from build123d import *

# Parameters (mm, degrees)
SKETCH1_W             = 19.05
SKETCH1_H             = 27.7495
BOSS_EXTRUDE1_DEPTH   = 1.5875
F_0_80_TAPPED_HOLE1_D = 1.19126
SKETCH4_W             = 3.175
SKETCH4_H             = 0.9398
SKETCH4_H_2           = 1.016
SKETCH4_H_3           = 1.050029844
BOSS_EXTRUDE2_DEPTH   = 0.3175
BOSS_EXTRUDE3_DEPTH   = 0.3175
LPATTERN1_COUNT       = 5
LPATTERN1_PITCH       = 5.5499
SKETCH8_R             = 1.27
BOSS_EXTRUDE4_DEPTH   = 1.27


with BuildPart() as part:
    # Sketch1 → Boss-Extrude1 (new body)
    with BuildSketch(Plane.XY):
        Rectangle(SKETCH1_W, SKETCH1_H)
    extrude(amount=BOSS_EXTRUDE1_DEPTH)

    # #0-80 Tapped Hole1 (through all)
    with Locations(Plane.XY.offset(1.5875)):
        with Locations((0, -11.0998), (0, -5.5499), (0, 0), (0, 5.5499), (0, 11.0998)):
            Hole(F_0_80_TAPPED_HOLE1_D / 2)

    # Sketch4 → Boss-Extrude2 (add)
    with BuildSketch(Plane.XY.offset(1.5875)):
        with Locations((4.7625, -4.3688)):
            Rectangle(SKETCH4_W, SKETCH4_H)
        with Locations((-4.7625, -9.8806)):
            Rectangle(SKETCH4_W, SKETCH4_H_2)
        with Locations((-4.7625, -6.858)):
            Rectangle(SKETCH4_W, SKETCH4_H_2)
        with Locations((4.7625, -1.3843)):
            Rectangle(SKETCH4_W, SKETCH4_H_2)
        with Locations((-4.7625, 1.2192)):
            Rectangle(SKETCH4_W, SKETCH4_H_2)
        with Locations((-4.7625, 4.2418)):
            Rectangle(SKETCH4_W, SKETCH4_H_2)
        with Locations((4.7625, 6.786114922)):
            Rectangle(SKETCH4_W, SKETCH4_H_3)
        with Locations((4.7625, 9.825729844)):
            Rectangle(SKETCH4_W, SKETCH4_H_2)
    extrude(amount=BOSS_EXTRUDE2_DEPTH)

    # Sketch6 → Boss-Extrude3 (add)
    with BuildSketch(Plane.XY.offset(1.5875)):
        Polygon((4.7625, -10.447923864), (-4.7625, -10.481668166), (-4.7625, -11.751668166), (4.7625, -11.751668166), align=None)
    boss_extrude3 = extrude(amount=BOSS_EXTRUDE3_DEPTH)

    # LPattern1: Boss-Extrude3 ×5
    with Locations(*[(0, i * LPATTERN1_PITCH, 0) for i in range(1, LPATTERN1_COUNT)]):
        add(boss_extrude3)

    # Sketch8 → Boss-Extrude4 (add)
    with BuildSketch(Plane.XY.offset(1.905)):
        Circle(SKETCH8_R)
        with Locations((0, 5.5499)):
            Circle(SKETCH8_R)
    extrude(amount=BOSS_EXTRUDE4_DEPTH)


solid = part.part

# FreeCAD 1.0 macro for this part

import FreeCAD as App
import Part
import Sketcher
Q = App.Units.Quantity


def add_polygon(sketch, points):
    """Adds a closed chain of lines whose ends are joined by coincident constraints."""
    first, n = sketch.GeometryCount, len(points)
    for a, b in zip(points, points[1:] + points[:1]):
        sketch.addGeometry(Part.LineSegment(App.Vector(*a, 0), App.Vector(*b, 0)), False)
    for i in range(n):
        sketch.addConstraint(Sketcher.Constraint("Coincident", first + i, 2, first + (i + 1) % n, 1))

doc = App.newDocument("Part")
body = doc.addObject("PartDesign::Body", "Body")

# Sketch on XY plane
sketch1 = doc.addObject("Sketcher::SketchObject", "Sketch")
body.addObject(sketch1)
sketch1.AttachmentSupport = (doc.XY_Plane, [""])
sketch1.MapMode = "FlatFace"
add_polygon(sketch1, [(-9.525, 13.87475), (-9.525, -13.87475), (9.525, -13.87475), (9.525, 13.87475)])  # lines 0-3
sketch1.addConstraint([
    Sketcher.Constraint("Vertical", 0),
    Sketcher.Constraint("Horizontal", 1),
    Sketcher.Constraint("Vertical", 2),
    Sketcher.Constraint("Horizontal", 3),
    Sketcher.Constraint("Symmetric", 0, 2, 2, 2, -1, 1),
    Sketcher.Constraint("DistanceX", 1, 1, 1, 2, Q("0.75 in")),
    Sketcher.Constraint("DistanceY", 0, 2, 0, 1, Q("1.0925 in")),
])
pad1 = doc.addObject("PartDesign::Pad", "Pad")
body.addObject(pad1)
pad1.Profile = sketch1
pad1.Length = Q("0.0625 in")

# Sketch on XY plane
sketch2 = doc.addObject("Sketcher::SketchObject", "Sketch001")
body.addObject(sketch2)
sketch2.AttachmentSupport = (doc.XY_Plane, [""])
sketch2.MapMode = "FlatFace"
sketch2.AttachmentOffset = App.Placement(App.Vector(0, 0, 0.0625 * 25.4), App.Rotation())
sketch2.addGeometry([
    Part.Circle(App.Vector(0, -11.0998, 0), App.Vector(0, 0, 1), 0.59563),  # 0
    Part.Circle(App.Vector(0, -5.5499, 0), App.Vector(0, 0, 1), 0.59563),  # 1
    Part.Circle(App.Vector(0, 0, 0), App.Vector(0, 0, 1), 0.59563),  # 2
    Part.Circle(App.Vector(0, 5.5499, 0), App.Vector(0, 0, 1), 0.59563),  # 3
    Part.Circle(App.Vector(0, 11.0998, 0), App.Vector(0, 0, 1), 0.59563),  # 4
], False)
sketch2.addConstraint([
    Sketcher.Constraint("Coincident", 2, 3, -1, 1),
    Sketcher.Constraint("Equal", 0, 1),
    Sketcher.Constraint("Equal", 1, 2),
    Sketcher.Constraint("Equal", 2, 3),
    Sketcher.Constraint("Equal", 3, 4),
    Sketcher.Constraint("Symmetric", 1, 3, 3, 3, -1, 1),
    Sketcher.Constraint("Symmetric", 0, 3, 4, 3, -1, 1),
    Sketcher.Constraint("PointOnObject", 0, 3, -2),
    Sketcher.Constraint("PointOnObject", 1, 3, -2),
    Sketcher.Constraint("Diameter", 0, Q("0.0469 in")),
    Sketcher.Constraint("DistanceY", 0, 3, -1, 1, Q("0.437 in")),
    Sketcher.Constraint("DistanceY", 1, 3, 3, 3, Q("0.437 in")),
])
doc.recompute()
hole = doc.addObject("PartDesign::Hole", "Hole")
body.addObject(hole)
hole.Profile = sketch2
hole.ThreadType = "None"
hole.Diameter = Q("0.0469 in")
hole.DepthType = "ThroughAll"

# Sketch on XY plane
sketch3 = doc.addObject("Sketcher::SketchObject", "Sketch002")
body.addObject(sketch3)
sketch3.AttachmentSupport = (doc.XY_Plane, [""])
sketch3.MapMode = "FlatFace"
sketch3.AttachmentOffset = App.Placement(App.Vector(0, 0, 0.0625 * 25.4), App.Rotation())
add_polygon(sketch3, [(3.175, -3.8989), (3.175, -4.8387), (6.35, -4.8387), (6.35, -3.8989)])  # lines 0-3
add_polygon(sketch3, [(-6.35, -9.3726), (-6.35, -10.3886), (-3.175, -10.3886), (-3.175, -9.3726)])  # lines 4-7
add_polygon(sketch3, [(-6.35, -6.35), (-6.35, -7.366), (-3.175, -7.366), (-3.175, -6.35)])  # lines 8-11
add_polygon(sketch3, [(3.175, -0.8763), (3.175, -1.8923), (6.35, -1.8923), (6.35, -0.8763)])  # lines 12-15
add_polygon(sketch3, [(-6.35, 1.7272), (-6.35, 0.7112), (-3.175, 0.7112), (-3.175, 1.7272)])  # lines 16-19
add_polygon(sketch3, [(-6.35, 4.7498), (-6.35, 3.7338), (-3.175, 3.7338), (-3.175, 4.7498)])  # lines 20-23
add_polygon(sketch3, [(3.175, 7.31113), (3.175, 6.2611), (6.35, 6.2611), (6.35, 7.31113)])  # lines 24-27
add_polygon(sketch3, [(3.175, 10.33373), (3.175, 9.31773), (6.35, 9.31773), (6.35, 10.33373)])  # lines 28-31
sketch3.addConstraint([
    Sketcher.Constraint("Vertical", 0),
    Sketcher.Constraint("Horizontal", 1),
    Sketcher.Constraint("Vertical", 2),
    Sketcher.Constraint("Horizontal", 3),
    Sketcher.Constraint("Vertical", 4),
    Sketcher.Constraint("Horizontal", 5),
    Sketcher.Constraint("Vertical", 6),
    Sketcher.Constraint("Horizontal", 7),
    Sketcher.Constraint("Vertical", 8),
    Sketcher.Constraint("Horizontal", 9),
    Sketcher.Constraint("Vertical", 10),
    Sketcher.Constraint("Horizontal", 11),
    Sketcher.Constraint("Vertical", 12),
    Sketcher.Constraint("Horizontal", 13),
    Sketcher.Constraint("Vertical", 14),
    Sketcher.Constraint("Horizontal", 15),
    Sketcher.Constraint("Vertical", 16),
    Sketcher.Constraint("Horizontal", 17),
    Sketcher.Constraint("Vertical", 18),
    Sketcher.Constraint("Horizontal", 19),
    Sketcher.Constraint("Vertical", 20),
    Sketcher.Constraint("Horizontal", 21),
    Sketcher.Constraint("Vertical", 22),
    Sketcher.Constraint("Horizontal", 23),
    Sketcher.Constraint("Vertical", 24),
    Sketcher.Constraint("Horizontal", 25),
    Sketcher.Constraint("Vertical", 26),
    Sketcher.Constraint("Horizontal", 27),
    Sketcher.Constraint("Vertical", 28),
    Sketcher.Constraint("Horizontal", 29),
    Sketcher.Constraint("Vertical", 30),
    Sketcher.Constraint("Horizontal", 31),
    Sketcher.Constraint("Vertical", 7, 2, 8, 2),
    Sketcher.Constraint("Vertical", 6, 2, 9, 2),
    Sketcher.Constraint("Vertical", 3, 2, 12, 2),
    Sketcher.Constraint("Vertical", 2, 2, 13, 2),
    Sketcher.Constraint("Vertical", 11, 2, 16, 2),
    Sketcher.Constraint("Vertical", 10, 2, 17, 2),
    Sketcher.Constraint("Vertical", 19, 2, 20, 2),
    Sketcher.Constraint("Vertical", 18, 2, 21, 2),
    Sketcher.Constraint("Vertical", 15, 2, 24, 2),
    Sketcher.Constraint("Vertical", 14, 2, 25, 2),
    Sketcher.Constraint("Vertical", 27, 2, 28, 2),
    Sketcher.Constraint("Vertical", 26, 2, 29, 2),
    Sketcher.Constraint("Equal", 3, 5),
    Sketcher.Constraint("Equal", 6, 8),
    Sketcher.Constraint("Equal", 10, 12),
    Sketcher.Constraint("Equal", 14, 16),
    Sketcher.Constraint("Equal", 18, 20),
    Sketcher.Constraint("Equal", 22, 28),
    Sketcher.Constraint("DistanceY", 4, 2, 4, 1, Q("0.04 in")),
    Sketcher.Constraint("DistanceX", 4, 2, 1, 2, Q("0.5 in")),
    Sketcher.Constraint("DistanceX", 1, 1, 1, 2, Q("0.125 in")),
    Sketcher.Constraint("DistanceY", 0, 2, 0, 1, Q("0.037 in")),
    Sketcher.Constraint("DistanceX", -1, 1, 1, 2, Q("0.25 in")),
    Sketcher.Constraint("DistanceY", 8, 2, -1, 1, Q("0.29 in")),
    Sketcher.Constraint("DistanceY", 4, 2, -1, 1, Q("0.409 in")),
    Sketcher.Constraint("DistanceY", -1, 1, 16, 2, Q("0.028 in")),
    Sketcher.Constraint("DistanceY", -1, 1, 20, 2, Q("0.147 in")),
    Sketcher.Constraint("DistanceY", 3, 2, 12, 2, Q("0.079 in")),
    Sketcher.Constraint("DistanceY", 15, 2, 16, 2, Q("0.0625 in")),
    Sketcher.Constraint("DistanceY", 15, 2, 24, 2, Q("0.281 in")),
    Sketcher.Constraint("DistanceY", 27, 2, 28, 2, Q("0.079 in")),
    Sketcher.Constraint("DistanceY", 24, 2, 24, 1, Q("1.05003 mm")),
])
pad2 = doc.addObject("PartDesign::Pad", "Pad001")
body.addObject(pad2)
pad2.Profile = sketch3
pad2.Length = Q("0.0125 in")

# Sketch on XY plane
sketch4 = doc.addObject("Sketcher::SketchObject", "Sketch003")
body.addObject(sketch4)
sketch4.AttachmentSupport = (doc.XY_Plane, [""])
sketch4.MapMode = "FlatFace"
sketch4.AttachmentOffset = App.Placement(App.Vector(0, 0, 0.0625 * 25.4), App.Rotation())
add_polygon(sketch4, [(4.7625, -10.447924), (-4.7625, -10.481668), (-4.7625, -11.751668), (4.7625, -11.751668)])  # lines 0-3
sketch4.addConstraint([
    Sketcher.Constraint("Vertical", 1),
    Sketcher.Constraint("Horizontal", 2),
    Sketcher.Constraint("Vertical", 3),
    Sketcher.Constraint("DistanceY", 1, 2, 1, 1, Q("0.05 in")),
    Sketcher.Constraint("DistanceX", 2, 1, 2, 2, Q("0.375 in")),
    Sketcher.Constraint("DistanceX", 0, 2, -1, 1, Q("0.1875 in")),
    Sketcher.Constraint("Distance", 0, Q("9.52506 mm")),
    Sketcher.Constraint("DistanceY", 0, 2, -1, 1, Q("10.481668 mm")),
])
pad3 = doc.addObject("PartDesign::Pad", "Pad002")
body.addObject(pad3)
pad3.Profile = sketch4
pad3.Length = Q("0.0125 in")
doc.recompute()

linearpattern = doc.addObject("PartDesign::LinearPattern", "LinearPattern")
body.addObject(linearpattern)
linearpattern.Originals = [pad3]
linearpattern.Direction = (doc.Y_Axis, [""])
linearpattern.Mode = "offset"
linearpattern.Offset = Q("0.2185 in")
linearpattern.Occurrences = 5
body.Tip = linearpattern

# Sketch on XY plane
sketch5 = doc.addObject("Sketcher::SketchObject", "Sketch004")
body.addObject(sketch5)
sketch5.AttachmentSupport = (doc.XY_Plane, [""])
sketch5.MapMode = "FlatFace"
sketch5.AttachmentOffset = App.Placement(App.Vector(0, 0, 0.075 * 25.4), App.Rotation())
sketch5.addGeometry([
    Part.Circle(App.Vector(0, 0, 0), App.Vector(0, 0, 1), 1.27),
    Part.Circle(App.Vector(0, 5.5499, 0), App.Vector(0, 0, 1), 1.27),
], False)
sketch5.addConstraint([
    Sketcher.Constraint("Coincident", 0, 3, -1, 1),
    Sketcher.Constraint("Equal", 0, 1),
    Sketcher.Constraint("PointOnObject", 1, 3, -2),
    Sketcher.Constraint("Diameter", 0, Q("0.1 in")),
    Sketcher.Constraint("DistanceY", -1, 1, 1, 3, Q("0.2185 in")),
])
pad4 = doc.addObject("PartDesign::Pad", "Pad003")
body.addObject(pad4)
pad4.Profile = sketch5
pad4.Length = Q("0.05 in")

doc.recompute()
